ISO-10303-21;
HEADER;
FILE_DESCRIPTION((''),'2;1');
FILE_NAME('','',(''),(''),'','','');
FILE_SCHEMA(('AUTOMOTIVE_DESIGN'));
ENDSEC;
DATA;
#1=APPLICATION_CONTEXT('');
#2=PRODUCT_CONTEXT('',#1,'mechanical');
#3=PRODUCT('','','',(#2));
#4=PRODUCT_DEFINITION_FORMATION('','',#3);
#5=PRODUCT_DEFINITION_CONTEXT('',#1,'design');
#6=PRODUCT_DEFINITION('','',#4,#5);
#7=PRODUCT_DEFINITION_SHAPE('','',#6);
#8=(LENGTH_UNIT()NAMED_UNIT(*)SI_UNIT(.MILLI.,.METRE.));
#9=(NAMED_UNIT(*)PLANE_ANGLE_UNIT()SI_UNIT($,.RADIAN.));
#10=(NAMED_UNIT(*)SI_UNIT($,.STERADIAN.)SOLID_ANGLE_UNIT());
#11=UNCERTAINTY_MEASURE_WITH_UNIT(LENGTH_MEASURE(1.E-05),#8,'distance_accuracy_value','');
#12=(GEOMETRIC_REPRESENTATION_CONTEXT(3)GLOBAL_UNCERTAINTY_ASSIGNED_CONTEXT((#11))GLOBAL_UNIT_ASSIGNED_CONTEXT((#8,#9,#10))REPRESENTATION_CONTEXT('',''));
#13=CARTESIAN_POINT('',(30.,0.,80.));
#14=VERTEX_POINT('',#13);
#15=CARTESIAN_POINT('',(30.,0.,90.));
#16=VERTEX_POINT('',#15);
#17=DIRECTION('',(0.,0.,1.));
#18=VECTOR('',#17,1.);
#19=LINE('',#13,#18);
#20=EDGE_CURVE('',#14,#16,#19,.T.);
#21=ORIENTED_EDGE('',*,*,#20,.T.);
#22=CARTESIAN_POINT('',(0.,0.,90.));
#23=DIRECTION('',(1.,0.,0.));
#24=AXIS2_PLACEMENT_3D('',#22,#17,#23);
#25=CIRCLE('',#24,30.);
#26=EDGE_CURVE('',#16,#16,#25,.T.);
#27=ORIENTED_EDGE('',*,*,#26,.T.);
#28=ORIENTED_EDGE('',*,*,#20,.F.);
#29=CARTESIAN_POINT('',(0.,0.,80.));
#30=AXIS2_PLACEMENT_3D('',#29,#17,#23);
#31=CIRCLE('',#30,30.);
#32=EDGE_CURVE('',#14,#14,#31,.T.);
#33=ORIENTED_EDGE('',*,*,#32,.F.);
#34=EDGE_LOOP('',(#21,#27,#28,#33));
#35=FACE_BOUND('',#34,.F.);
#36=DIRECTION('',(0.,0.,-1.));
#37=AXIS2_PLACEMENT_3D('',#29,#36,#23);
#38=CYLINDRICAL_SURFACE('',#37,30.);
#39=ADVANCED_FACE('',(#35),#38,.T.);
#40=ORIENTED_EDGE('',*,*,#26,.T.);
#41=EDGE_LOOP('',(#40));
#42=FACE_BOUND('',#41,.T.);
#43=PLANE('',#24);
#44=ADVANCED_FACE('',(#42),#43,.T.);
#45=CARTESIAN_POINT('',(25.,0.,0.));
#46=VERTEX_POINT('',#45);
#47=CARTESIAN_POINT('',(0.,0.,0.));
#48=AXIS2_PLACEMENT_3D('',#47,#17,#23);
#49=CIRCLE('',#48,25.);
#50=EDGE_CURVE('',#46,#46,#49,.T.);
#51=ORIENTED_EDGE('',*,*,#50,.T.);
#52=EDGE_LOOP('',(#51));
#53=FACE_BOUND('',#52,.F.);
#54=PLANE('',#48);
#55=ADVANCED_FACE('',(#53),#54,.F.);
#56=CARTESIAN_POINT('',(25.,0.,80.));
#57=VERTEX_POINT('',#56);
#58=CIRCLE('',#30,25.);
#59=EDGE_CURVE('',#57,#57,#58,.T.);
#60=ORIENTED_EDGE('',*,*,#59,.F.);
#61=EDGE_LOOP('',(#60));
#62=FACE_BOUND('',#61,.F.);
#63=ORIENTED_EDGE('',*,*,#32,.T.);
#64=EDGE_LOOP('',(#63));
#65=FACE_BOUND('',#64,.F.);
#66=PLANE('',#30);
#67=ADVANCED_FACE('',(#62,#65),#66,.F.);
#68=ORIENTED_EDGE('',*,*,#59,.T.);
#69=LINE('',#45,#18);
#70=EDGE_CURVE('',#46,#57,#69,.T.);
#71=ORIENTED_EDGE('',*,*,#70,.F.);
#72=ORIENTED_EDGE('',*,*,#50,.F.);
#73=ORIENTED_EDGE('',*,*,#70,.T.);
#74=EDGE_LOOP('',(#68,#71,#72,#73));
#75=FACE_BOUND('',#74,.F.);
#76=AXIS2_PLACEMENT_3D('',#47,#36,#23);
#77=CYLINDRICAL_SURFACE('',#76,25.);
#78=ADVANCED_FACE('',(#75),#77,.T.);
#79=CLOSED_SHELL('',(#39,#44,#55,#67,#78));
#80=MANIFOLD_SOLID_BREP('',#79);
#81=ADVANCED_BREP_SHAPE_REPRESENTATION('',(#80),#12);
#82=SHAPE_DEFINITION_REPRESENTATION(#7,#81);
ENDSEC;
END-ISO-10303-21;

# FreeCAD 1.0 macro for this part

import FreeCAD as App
import Part
import Sketcher

doc = App.newDocument("Part")
body = doc.addObject("PartDesign::Body", "Body")

# Sketch on XY plane
sketch1 = body.newObject("Sketcher::SketchObject", "Sketch")
sketch1.AttachmentSupport = (doc.getObject("XY_Plane"), [""])
sketch1.MapMode = "FlatFace"
sketch1.addGeometry(Part.Circle(App.Vector(0, 0, 0), App.Vector(0, 0, 1), 25), False)
sketch1.addConstraint([
    Sketcher.Constraint("Coincident", 0, 3, -1, 1),
    Sketcher.Constraint("Diameter", 0, 50.0),
])
pad1 = body.newObject("PartDesign::Pad", "Pad")
pad1.Profile = sketch1
pad1.Length = 80

# Sketch on XY plane
sketch2 = body.newObject("Sketcher::SketchObject", "Sketch001")
sketch2.AttachmentSupport = (doc.getObject("XY_Plane"), [""])
sketch2.MapMode = "FlatFace"
sketch2.AttachmentOffset = App.Placement(App.Vector(0, 0, 80), App.Rotation())
sketch2.addGeometry(Part.Circle(App.Vector(0, 0, 0), App.Vector(0, 0, 1), 30), False)
sketch2.addConstraint([
    Sketcher.Constraint("Coincident", 0, 3, -1, 1),
    Sketcher.Constraint("Diameter", 0, 60.0),
])
pad2 = body.newObject("PartDesign::Pad", "Pad001")
pad2.Profile = sketch2
pad2.Length = 10

doc.recompute()
